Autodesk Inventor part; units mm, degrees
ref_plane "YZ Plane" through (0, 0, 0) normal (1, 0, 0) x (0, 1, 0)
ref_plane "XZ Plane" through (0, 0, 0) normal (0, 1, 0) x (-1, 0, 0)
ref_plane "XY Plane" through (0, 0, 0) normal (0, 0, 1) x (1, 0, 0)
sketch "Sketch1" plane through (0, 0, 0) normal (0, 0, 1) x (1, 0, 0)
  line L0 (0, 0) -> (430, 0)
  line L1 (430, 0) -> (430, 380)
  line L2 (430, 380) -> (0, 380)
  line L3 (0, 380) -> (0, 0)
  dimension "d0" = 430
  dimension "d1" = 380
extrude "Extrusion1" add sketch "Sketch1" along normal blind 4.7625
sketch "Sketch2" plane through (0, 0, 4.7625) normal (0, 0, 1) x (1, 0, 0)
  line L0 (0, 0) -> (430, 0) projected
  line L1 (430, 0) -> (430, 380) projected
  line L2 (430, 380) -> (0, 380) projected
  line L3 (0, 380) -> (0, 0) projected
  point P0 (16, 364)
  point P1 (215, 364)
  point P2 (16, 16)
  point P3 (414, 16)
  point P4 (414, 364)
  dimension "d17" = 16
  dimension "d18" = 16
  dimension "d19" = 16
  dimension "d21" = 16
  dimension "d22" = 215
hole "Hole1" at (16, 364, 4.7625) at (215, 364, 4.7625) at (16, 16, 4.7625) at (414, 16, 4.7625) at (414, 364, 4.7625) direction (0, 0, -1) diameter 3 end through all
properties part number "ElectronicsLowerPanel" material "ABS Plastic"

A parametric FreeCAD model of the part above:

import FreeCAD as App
import Part
import Sketcher

V = App.Vector

doc = App.newDocument("Part")
body = doc.addObject("PartDesign::Body", "Body")

# Sketch on XY plane
sketch1 = body.newObject("Sketcher::SketchObject", "Sketch")
sketch1.AttachmentSupport = (doc.getObject("XY_Plane"), [""])
sketch1.MapMode = "FlatFace"
sketch1.addGeometry(Part.LineSegment(V(0, 380, 0), V(0, 0, 0)), False)
sketch1.addGeometry(Part.LineSegment(V(0, 0, 0), V(430, 0, 0)), False)
sketch1.addGeometry(Part.LineSegment(V(430, 0, 0), V(430, 380, 0)), False)
sketch1.addGeometry(Part.LineSegment(V(430, 380, 0), V(0, 380, 0)), False)
sketch1.addConstraint(Sketcher.Constraint("Coincident", 0, 2, 1, 1))
sketch1.addConstraint(Sketcher.Constraint("Coincident", 1, 2, 2, 1))
sketch1.addConstraint(Sketcher.Constraint("Coincident", 2, 2, 3, 1))
sketch1.addConstraint(Sketcher.Constraint("Coincident", 3, 2, 0, 1))
sketch1.addConstraint(Sketcher.Constraint("Vertical", 0))
sketch1.addConstraint(Sketcher.Constraint("Horizontal", 1))
sketch1.addConstraint(Sketcher.Constraint("Vertical", 2))
sketch1.addConstraint(Sketcher.Constraint("Horizontal", 3))
sketch1.addConstraint(Sketcher.Constraint("Coincident", 0, 2, -1, 1))
sketch1.addConstraint(Sketcher.Constraint("DistanceX", 1, 1, 1, 2, 430.0))
sketch1.addConstraint(Sketcher.Constraint("DistanceY", 0, 2, 0, 1, 380.0))
pad1 = body.newObject("PartDesign::Pad", "Pad")
pad1.Profile = sketch1
pad1.Length = 4.7625

# Sketch on XY plane
sketch2 = body.newObject("Sketcher::SketchObject", "Sketch001")
sketch2.AttachmentSupport = (doc.getObject("XY_Plane"), [""])
sketch2.MapMode = "FlatFace"
sketch2.AttachmentOffset = App.Placement(V(0, 0, 4.7625), App.Rotation())
sketch2.addGeometry(Part.Circle(V(16, 364, 0), V(0, 0, 1), 1.5), False)
sketch2.addGeometry(Part.Circle(V(215, 364, 0), V(0, 0, 1), 1.5), False)
sketch2.addGeometry(Part.Circle(V(16, 16, 0), V(0, 0, 1), 1.5), False)
sketch2.addGeometry(Part.Circle(V(414, 16, 0), V(0, 0, 1), 1.5), False)
sketch2.addGeometry(Part.Circle(V(414, 364, 0), V(0, 0, 1), 1.5), False)
sketch2.addConstraint(Sketcher.Constraint("Equal", 0, 1))
sketch2.addConstraint(Sketcher.Constraint("Equal", 1, 2))
sketch2.addConstraint(Sketcher.Constraint("Equal", 2, 3))
sketch2.addConstraint(Sketcher.Constraint("Equal", 3, 4))
sketch2.addConstraint(Sketcher.Constraint("Horizontal", 0, 3, 1, 3))
sketch2.addConstraint(Sketcher.Constraint("Horizontal", 2, 3, 3, 3))
sketch2.addConstraint(Sketcher.Constraint("Horizontal", 1, 3, 4, 3))
sketch2.addConstraint(Sketcher.Constraint("Vertical", 0, 3, 2, 3))
sketch2.addConstraint(Sketcher.Constraint("Vertical", 3, 3, 4, 3))
sketch2.addConstraint(Sketcher.Constraint("Diameter", 0, 3.0))
sketch2.addConstraint(Sketcher.Constraint("DistanceX", -1, 1, 0, 3, 16.0))
sketch2.addConstraint(Sketcher.Constraint("DistanceY", -1, 1, 0, 3, 364.0))
sketch2.addConstraint(Sketcher.Constraint("DistanceX", -1, 1, 1, 3, 215.0))
sketch2.addConstraint(Sketcher.Constraint("DistanceY", -1, 1, 2, 3, 16.0))
sketch2.addConstraint(Sketcher.Constraint("DistanceX", -1, 1, 3, 3, 414.0))
doc.recompute()
hole = body.newObject("PartDesign::Hole", "Hole")
hole.Profile = sketch2
hole.ThreadType = "None"
hole.Diameter = 3
hole.DepthType = "ThroughAll"

doc.recompute()
